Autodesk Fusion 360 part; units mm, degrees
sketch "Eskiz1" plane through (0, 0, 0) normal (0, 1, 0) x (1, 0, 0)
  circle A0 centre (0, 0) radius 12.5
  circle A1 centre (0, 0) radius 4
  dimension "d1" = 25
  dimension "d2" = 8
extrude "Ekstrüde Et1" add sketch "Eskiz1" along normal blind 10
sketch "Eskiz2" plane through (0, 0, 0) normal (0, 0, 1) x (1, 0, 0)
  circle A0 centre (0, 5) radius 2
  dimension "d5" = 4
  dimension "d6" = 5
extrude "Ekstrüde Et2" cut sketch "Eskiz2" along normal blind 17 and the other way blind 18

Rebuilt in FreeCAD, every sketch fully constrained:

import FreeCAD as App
import Part
import Sketcher
from FreeCAD import Vector

doc = App.newDocument("Part")
body = doc.addObject("PartDesign::Body", "Body")

# Sketch on XZ plane
sketch1 = body.newObject("Sketcher::SketchObject", "Sketch")
sketch1.AttachmentSupport = (doc.getObject("XZ_Plane"), [""])
sketch1.MapMode = "FlatFace"
sketch1.addGeometry(Part.Circle(Vector(0, 0, 0), Vector(0, 0, 1), 12.5), False)
sketch1.addGeometry(Part.Circle(Vector(0, 0, 0), Vector(0, 0, 1), 4), False)
sketch1.addConstraint(Sketcher.Constraint("Coincident", 0, 3, -1, 1))
sketch1.addConstraint(Sketcher.Constraint("Coincident", 1, 3, -1, 1))
sketch1.addConstraint(Sketcher.Constraint("Diameter", 0, 25.0))
sketch1.addConstraint(Sketcher.Constraint("Diameter", 1, 8.0))
pad1 = body.newObject("PartDesign::Pad", "Pad")
pad1.Profile = sketch1
pad1.Length = 10
pad1.Reversed = True

# Sketch on XY plane
sketch2 = body.newObject("Sketcher::SketchObject", "Sketch001")
sketch2.AttachmentSupport = (doc.getObject("XY_Plane"), [""])
sketch2.MapMode = "FlatFace"
sketch2.addGeometry(Part.Circle(Vector(0, 5, 0), Vector(0, 0, 1), 2), False)
sketch2.addConstraint(Sketcher.Constraint("PointOnObject", 0, 3, -2))
sketch2.addConstraint(Sketcher.Constraint("Diameter", 0, 4.0))
sketch2.addConstraint(Sketcher.Constraint("DistanceY", -1, 1, 0, 3, 5.0))
pocket1 = body.newObject("PartDesign::Pocket", "Pocket")
pocket1.Profile = sketch2
pocket1.Type = "ThroughAll"
pocket1.Midplane = True

doc.recompute()
